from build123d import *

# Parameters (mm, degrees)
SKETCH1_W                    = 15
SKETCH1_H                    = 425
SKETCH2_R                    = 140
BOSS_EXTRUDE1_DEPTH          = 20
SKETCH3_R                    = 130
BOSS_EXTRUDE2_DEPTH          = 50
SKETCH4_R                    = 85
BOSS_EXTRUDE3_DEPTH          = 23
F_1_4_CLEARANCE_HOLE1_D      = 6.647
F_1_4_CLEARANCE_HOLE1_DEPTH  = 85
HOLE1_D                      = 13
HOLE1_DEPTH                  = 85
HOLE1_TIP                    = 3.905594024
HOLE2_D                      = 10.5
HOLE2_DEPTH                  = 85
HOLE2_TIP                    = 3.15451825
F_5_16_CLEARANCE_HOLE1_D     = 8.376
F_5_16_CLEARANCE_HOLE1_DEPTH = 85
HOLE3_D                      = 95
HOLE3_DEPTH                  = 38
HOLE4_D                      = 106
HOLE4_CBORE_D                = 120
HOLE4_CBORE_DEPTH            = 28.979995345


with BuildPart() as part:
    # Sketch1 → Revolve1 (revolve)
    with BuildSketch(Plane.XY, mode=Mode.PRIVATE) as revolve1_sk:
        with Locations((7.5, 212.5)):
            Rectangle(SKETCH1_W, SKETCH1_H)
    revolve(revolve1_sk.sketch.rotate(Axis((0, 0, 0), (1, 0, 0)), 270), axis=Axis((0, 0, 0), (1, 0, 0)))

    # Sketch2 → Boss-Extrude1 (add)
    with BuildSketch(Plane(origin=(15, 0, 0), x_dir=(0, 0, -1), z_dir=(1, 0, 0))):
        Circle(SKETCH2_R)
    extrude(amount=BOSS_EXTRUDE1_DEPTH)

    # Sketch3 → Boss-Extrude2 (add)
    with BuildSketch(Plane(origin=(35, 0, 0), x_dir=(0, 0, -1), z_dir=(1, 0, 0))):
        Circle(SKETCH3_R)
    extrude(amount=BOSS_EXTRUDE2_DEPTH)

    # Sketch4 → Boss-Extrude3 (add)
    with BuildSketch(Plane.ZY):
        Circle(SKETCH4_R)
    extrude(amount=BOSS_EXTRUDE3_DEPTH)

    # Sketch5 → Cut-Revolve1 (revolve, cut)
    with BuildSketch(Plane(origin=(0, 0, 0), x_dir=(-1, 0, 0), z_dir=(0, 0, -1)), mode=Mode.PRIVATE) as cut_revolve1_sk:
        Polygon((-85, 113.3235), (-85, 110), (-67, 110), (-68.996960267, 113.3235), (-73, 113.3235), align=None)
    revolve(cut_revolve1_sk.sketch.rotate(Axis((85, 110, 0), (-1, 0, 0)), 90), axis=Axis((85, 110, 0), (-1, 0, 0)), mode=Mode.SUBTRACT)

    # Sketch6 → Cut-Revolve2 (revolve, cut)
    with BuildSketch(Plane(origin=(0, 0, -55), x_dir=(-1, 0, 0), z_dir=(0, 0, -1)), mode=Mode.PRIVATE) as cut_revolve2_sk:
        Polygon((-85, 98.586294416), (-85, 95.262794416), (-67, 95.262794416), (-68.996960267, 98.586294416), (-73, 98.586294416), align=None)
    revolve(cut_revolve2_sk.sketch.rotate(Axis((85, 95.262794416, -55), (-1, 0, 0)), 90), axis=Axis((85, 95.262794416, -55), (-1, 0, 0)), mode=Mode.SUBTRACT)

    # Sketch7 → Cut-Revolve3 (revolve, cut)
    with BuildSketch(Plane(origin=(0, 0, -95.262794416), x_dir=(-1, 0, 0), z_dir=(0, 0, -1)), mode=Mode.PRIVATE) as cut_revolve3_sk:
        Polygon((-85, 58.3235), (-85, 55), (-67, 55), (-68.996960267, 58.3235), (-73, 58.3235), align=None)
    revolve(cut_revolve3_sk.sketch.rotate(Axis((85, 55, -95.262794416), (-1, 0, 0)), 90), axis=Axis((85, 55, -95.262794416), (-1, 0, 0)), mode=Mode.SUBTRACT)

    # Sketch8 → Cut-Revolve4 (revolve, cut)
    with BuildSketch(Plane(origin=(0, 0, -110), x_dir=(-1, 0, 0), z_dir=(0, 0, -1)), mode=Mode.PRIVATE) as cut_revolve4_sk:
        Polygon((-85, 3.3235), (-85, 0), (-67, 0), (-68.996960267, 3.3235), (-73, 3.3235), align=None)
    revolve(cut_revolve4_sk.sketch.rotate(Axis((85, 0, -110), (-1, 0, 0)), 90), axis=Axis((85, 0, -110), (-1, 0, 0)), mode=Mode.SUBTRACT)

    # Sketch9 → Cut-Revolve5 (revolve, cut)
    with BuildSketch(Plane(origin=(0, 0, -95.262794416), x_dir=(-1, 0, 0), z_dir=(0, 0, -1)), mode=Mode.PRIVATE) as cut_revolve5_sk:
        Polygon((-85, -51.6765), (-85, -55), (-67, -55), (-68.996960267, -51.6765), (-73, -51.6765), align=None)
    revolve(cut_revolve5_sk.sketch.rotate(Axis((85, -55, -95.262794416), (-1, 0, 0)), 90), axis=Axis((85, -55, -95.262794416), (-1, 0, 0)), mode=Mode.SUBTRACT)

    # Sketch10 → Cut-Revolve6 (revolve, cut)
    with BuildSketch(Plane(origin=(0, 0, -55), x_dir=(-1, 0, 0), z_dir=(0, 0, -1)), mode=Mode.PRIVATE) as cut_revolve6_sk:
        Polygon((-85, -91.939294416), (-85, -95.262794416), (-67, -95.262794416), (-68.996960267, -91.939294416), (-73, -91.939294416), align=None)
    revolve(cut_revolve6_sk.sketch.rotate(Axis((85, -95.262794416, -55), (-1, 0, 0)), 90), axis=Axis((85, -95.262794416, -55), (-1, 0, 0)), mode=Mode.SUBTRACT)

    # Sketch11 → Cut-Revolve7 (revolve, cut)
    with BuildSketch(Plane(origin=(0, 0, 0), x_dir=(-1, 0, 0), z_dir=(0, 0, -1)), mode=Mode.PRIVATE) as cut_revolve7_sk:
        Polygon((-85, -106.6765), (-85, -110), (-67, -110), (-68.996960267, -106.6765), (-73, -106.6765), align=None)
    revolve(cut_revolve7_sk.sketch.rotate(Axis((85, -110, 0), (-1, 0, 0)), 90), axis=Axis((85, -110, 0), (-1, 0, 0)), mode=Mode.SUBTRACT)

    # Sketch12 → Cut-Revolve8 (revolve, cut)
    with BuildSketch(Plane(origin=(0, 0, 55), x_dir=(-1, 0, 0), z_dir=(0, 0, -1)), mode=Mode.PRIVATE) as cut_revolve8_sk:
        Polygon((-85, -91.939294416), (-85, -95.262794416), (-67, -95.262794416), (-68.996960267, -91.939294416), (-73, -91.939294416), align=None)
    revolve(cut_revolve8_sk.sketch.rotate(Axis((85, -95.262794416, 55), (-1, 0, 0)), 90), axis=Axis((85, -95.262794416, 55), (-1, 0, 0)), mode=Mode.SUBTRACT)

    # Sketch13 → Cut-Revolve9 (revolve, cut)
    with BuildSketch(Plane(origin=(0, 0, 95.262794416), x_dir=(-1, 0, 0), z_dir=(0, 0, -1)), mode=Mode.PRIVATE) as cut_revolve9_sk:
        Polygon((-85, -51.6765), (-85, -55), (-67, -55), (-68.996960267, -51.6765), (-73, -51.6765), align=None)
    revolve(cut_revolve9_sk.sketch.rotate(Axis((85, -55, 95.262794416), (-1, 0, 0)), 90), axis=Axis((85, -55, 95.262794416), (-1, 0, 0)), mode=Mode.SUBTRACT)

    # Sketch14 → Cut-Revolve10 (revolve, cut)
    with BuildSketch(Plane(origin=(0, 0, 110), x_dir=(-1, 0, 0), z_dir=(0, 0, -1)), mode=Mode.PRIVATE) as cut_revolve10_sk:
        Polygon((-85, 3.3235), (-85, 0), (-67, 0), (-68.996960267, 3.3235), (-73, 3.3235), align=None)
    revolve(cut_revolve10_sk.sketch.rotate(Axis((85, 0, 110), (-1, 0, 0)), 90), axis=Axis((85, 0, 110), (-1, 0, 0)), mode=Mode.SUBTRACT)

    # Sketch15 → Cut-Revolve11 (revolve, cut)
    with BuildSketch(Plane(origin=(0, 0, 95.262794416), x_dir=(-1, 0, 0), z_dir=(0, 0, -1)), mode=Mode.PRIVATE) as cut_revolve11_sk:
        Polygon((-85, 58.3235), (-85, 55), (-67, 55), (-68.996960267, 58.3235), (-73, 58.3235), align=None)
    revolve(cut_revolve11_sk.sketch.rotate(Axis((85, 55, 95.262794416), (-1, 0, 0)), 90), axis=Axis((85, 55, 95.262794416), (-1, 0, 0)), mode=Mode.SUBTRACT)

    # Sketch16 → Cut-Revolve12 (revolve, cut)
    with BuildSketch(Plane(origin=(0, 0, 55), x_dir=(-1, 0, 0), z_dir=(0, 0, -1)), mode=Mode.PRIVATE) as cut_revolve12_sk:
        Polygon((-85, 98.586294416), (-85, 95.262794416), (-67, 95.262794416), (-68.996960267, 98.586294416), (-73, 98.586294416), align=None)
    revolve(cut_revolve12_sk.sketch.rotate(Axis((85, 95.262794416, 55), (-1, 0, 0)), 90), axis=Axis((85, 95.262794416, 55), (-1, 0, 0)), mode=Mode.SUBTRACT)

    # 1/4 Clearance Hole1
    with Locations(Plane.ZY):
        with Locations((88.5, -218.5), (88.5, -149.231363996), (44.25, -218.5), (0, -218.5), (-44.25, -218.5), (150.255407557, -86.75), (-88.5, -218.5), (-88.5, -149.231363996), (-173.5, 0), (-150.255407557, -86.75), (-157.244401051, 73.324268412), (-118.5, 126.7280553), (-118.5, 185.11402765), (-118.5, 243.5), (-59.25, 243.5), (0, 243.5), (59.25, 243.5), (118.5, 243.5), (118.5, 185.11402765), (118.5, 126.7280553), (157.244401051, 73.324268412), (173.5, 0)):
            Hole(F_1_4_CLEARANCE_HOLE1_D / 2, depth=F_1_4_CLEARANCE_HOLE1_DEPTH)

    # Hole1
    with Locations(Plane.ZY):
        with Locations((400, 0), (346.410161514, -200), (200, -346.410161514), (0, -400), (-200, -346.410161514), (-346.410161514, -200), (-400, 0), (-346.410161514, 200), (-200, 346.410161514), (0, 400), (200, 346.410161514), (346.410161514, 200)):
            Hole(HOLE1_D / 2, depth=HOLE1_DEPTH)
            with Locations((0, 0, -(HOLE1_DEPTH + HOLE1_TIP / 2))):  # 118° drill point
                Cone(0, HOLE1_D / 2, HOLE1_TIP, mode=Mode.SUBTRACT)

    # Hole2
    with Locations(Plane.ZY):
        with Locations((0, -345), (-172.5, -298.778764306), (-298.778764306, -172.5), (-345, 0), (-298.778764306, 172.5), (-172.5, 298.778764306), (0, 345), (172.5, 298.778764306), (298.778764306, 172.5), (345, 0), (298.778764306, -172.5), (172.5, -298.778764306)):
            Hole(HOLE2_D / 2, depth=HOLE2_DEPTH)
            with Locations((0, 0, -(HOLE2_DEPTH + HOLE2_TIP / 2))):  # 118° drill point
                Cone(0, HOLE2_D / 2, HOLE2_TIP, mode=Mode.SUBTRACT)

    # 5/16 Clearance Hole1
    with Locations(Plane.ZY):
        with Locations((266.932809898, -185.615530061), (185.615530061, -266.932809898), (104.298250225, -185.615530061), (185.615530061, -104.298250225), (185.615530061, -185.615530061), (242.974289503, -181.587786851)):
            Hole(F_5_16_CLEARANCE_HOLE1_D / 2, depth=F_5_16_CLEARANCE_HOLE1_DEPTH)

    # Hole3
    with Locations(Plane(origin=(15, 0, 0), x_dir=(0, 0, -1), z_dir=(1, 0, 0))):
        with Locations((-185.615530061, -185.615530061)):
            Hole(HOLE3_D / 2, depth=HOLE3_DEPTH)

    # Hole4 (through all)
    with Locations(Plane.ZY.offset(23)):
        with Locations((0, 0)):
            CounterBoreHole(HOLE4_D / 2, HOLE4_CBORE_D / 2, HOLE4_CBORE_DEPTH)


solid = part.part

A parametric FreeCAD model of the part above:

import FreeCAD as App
import Part
import Sketcher

V = App.Vector
Q = App.Units.Quantity

doc = App.newDocument("Part")
body = doc.addObject("PartDesign::Body", "Body")

# Sketch on XY plane
sketch1 = body.newObject("Sketcher::SketchObject", "Sketch")
sketch1.AttachmentSupport = (doc.getObject("XY_Plane"), [""])
sketch1.MapMode = "FlatFace"
sketch1.addGeometry([
    Part.LineSegment(V(0, 425, 0), V(0, 0, 0)),
    Part.LineSegment(V(0, 0, 0), V(15, 0, 0)),
    Part.LineSegment(V(15, 0, 0), V(15, 425, 0)),
    Part.LineSegment(V(15, 425, 0), V(0, 425, 0)),
], False)
sketch1.addConstraint([
    Sketcher.Constraint("Coincident", 0, 2, 1, 1),
    Sketcher.Constraint("Coincident", 1, 2, 2, 1),
    Sketcher.Constraint("Coincident", 2, 2, 3, 1),
    Sketcher.Constraint("Coincident", 3, 2, 0, 1),
    Sketcher.Constraint("Vertical", 0),
    Sketcher.Constraint("Horizontal", 1),
    Sketcher.Constraint("Vertical", 2),
    Sketcher.Constraint("Horizontal", 3),
    Sketcher.Constraint("Coincident", 0, 2, -1, 1),
    Sketcher.Constraint("DistanceX", 1, 1, 1, 2, 15.0),
    Sketcher.Constraint("DistanceY", 0, 2, 0, 1, 425.0),
])
revolution = body.newObject("PartDesign::Revolution", "Revolution")
revolution.Profile = sketch1
revolution.ReferenceAxis = (sketch1, ["H_Axis"])
revolution.Angle = 360

# Sketch on YZ plane
sketch2 = body.newObject("Sketcher::SketchObject", "Sketch001")
sketch2.AttachmentSupport = (doc.getObject("YZ_Plane"), [""])
sketch2.MapMode = "FlatFace"
sketch2.AttachmentOffset = App.Placement(V(0, 0, 15), App.Rotation())
sketch2.addGeometry(Part.Circle(V(0, 0, 0), V(0, 0, 1), 140), False)
sketch2.addConstraint([
    Sketcher.Constraint("Coincident", 0, 3, -1, 1),
    Sketcher.Constraint("Diameter", 0, 280.0),
])
pad1 = body.newObject("PartDesign::Pad", "Pad")
pad1.Profile = sketch2
pad1.Length = 20

# Sketch on YZ plane
sketch3 = body.newObject("Sketcher::SketchObject", "Sketch002")
sketch3.AttachmentSupport = (doc.getObject("YZ_Plane"), [""])
sketch3.MapMode = "FlatFace"
sketch3.AttachmentOffset = App.Placement(V(0, 0, 35), App.Rotation())
sketch3.addGeometry(Part.Circle(V(0, 0, 0), V(0, 0, 1), 130), False)
sketch3.addConstraint([
    Sketcher.Constraint("Coincident", 0, 3, -1, 1),
    Sketcher.Constraint("Diameter", 0, 260.0),
])
pad2 = body.newObject("PartDesign::Pad", "Pad001")
pad2.Profile = sketch3
pad2.Length = 50

# Sketch on YZ plane
sketch4 = body.newObject("Sketcher::SketchObject", "Sketch003")
sketch4.AttachmentSupport = (doc.getObject("YZ_Plane"), [""])
sketch4.MapMode = "FlatFace"
sketch4.addGeometry(Part.Circle(V(0, 0, 0), V(0, 0, 1), 85), False)
sketch4.addConstraint([
    Sketcher.Constraint("Coincident", 0, 3, -1, 1),
    Sketcher.Constraint("Diameter", 0, 170.0),
])
pad3 = body.newObject("PartDesign::Pad", "Pad002")
pad3.Profile = sketch4
pad3.Length = 23
pad3.Reversed = True

# Sketch on XY plane
sketch5 = body.newObject("Sketcher::SketchObject", "Sketch004")
sketch5.AttachmentSupport = (doc.getObject("XY_Plane"), [""])
sketch5.MapMode = "FlatFace"
sketch5.addGeometry([
    Part.LineSegment(V(85, 113.3235, 0), V(85, 110, 0)),
    Part.LineSegment(V(85, 110, 0), V(67, 110, 0)),
    Part.LineSegment(V(67, 110, 0), V(68.99696, 113.3235, 0)),
    Part.LineSegment(V(68.99696, 113.3235, 0), V(85, 113.3235, 0)),
], False)
sketch5.addGeometry(Part.LineSegment(V(85, 110, 0), V(67, 110, 0)), True)  # axis
sketch5.addConstraint([
    Sketcher.Constraint("Coincident", 0, 2, 1, 1),
    Sketcher.Constraint("Coincident", 1, 2, 2, 1),
    Sketcher.Constraint("Coincident", 2, 2, 3, 1),
    Sketcher.Constraint("Coincident", 3, 2, 0, 1),
    Sketcher.Constraint("Vertical", 0),
    Sketcher.Constraint("Horizontal", 1),
    Sketcher.Constraint("Horizontal", 3),
    Sketcher.Constraint("Horizontal", 4),
    Sketcher.Constraint("Coincident", 4, 1, 0, 2),
    Sketcher.Constraint("Equal", 1, 4),
    Sketcher.Constraint("DistanceX", 1, 2, 1, 1, 18.0),
    Sketcher.Constraint("Angle", 2, Q("59 deg")),
    Sketcher.Constraint("DistanceX", -1, 1, 0, 2, 85.0),
    Sketcher.Constraint("DistanceY", -1, 1, 0, 2, 110.0),
    Sketcher.Constraint("DistanceY", 0, 2, 0, 1, 3.3235),
])
groove = body.newObject("PartDesign::Groove", "Groove")
groove.Profile = sketch5
groove.ReferenceAxis = (sketch5, ["Axis0"])
groove.Angle = 360

# Sketch on XY plane
sketch6 = body.newObject("Sketcher::SketchObject", "Sketch005")
sketch6.AttachmentSupport = (doc.getObject("XY_Plane"), [""])
sketch6.MapMode = "FlatFace"
sketch6.AttachmentOffset = App.Placement(V(0, 0, -55), App.Rotation())
sketch6.addGeometry([
    Part.LineSegment(V(85, 98.586294, 0), V(85, 95.262794, 0)),
    Part.LineSegment(V(85, 95.262794, 0), V(67, 95.262794, 0)),
    Part.LineSegment(V(67, 95.262794, 0), V(68.99696, 98.586294, 0)),
    Part.LineSegment(V(68.99696, 98.586294, 0), V(85, 98.586294, 0)),
], False)
sketch6.addGeometry(Part.LineSegment(V(85, 95.262794, 0), V(67, 95.262794, 0)), True)  # axis
sketch6.addConstraint([
    Sketcher.Constraint("Coincident", 0, 2, 1, 1),
    Sketcher.Constraint("Coincident", 1, 2, 2, 1),
    Sketcher.Constraint("Coincident", 2, 2, 3, 1),
    Sketcher.Constraint("Coincident", 3, 2, 0, 1),
    Sketcher.Constraint("Vertical", 0),
    Sketcher.Constraint("Horizontal", 1),
    Sketcher.Constraint("Horizontal", 3),
    Sketcher.Constraint("Horizontal", 4),
    Sketcher.Constraint("Coincident", 4, 1, 0, 2),
    Sketcher.Constraint("Equal", 1, 4),
    Sketcher.Constraint("DistanceX", 1, 2, 1, 1, 18.0),
    Sketcher.Constraint("Angle", 2, Q("59 deg")),
    Sketcher.Constraint("DistanceX", -1, 1, 0, 2, 85.0),
    Sketcher.Constraint("DistanceY", 0, 2, 0, 1, 3.3235),
    Sketcher.Constraint("DistanceY", -1, 1, 0, 2, 95.262794),
])
groove2 = body.newObject("PartDesign::Groove", "Groove001")
groove2.Profile = sketch6
groove2.ReferenceAxis = (sketch6, ["Axis0"])
groove2.Angle = 360

# Sketch on XY plane
sketch7 = body.newObject("Sketcher::SketchObject", "Sketch006")
sketch7.AttachmentSupport = (doc.getObject("XY_Plane"), [""])
sketch7.MapMode = "FlatFace"
sketch7.AttachmentOffset = App.Placement(V(0, 0, -95.262794), App.Rotation())
sketch7.addGeometry([
    Part.LineSegment(V(85, 58.3235, 0), V(85, 55, 0)),
    Part.LineSegment(V(85, 55, 0), V(67, 55, 0)),
    Part.LineSegment(V(67, 55, 0), V(68.99696, 58.3235, 0)),
    Part.LineSegment(V(68.99696, 58.3235, 0), V(85, 58.3235, 0)),
], False)
sketch7.addGeometry(Part.LineSegment(V(85, 55, 0), V(67, 55, 0)), True)  # axis
sketch7.addConstraint([
    Sketcher.Constraint("Coincident", 0, 2, 1, 1),
    Sketcher.Constraint("Coincident", 1, 2, 2, 1),
    Sketcher.Constraint("Coincident", 2, 2, 3, 1),
    Sketcher.Constraint("Coincident", 3, 2, 0, 1),
    Sketcher.Constraint("Vertical", 0),
    Sketcher.Constraint("Horizontal", 1),
    Sketcher.Constraint("Horizontal", 3),
    Sketcher.Constraint("Horizontal", 4),
    Sketcher.Constraint("Coincident", 4, 1, 0, 2),
    Sketcher.Constraint("Equal", 1, 4),
    Sketcher.Constraint("DistanceX", 1, 2, 1, 1, 18.0),
    Sketcher.Constraint("Angle", 2, Q("59 deg")),
    Sketcher.Constraint("DistanceX", -1, 1, 0, 2, 85.0),
    Sketcher.Constraint("DistanceY", -1, 1, 0, 2, 55.0),
    Sketcher.Constraint("DistanceY", 0, 2, 0, 1, 3.3235),
])
groove3 = body.newObject("PartDesign::Groove", "Groove002")
groove3.Profile = sketch7
groove3.ReferenceAxis = (sketch7, ["Axis0"])
groove3.Angle = 360

# Sketch on XY plane
sketch8 = body.newObject("Sketcher::SketchObject", "Sketch007")
sketch8.AttachmentSupport = (doc.getObject("XY_Plane"), [""])
sketch8.MapMode = "FlatFace"
sketch8.AttachmentOffset = App.Placement(V(0, 0, -110), App.Rotation())
sketch8.addGeometry([
    Part.LineSegment(V(85, 3.3235, 0), V(85, 0, 0)),
    Part.LineSegment(V(85, 0, 0), V(67, 0, 0)),
    Part.LineSegment(V(67, 0, 0), V(68.99696, 3.3235, 0)),
    Part.LineSegment(V(68.99696, 3.3235, 0), V(85, 3.3235, 0)),
], False)
sketch8.addConstraint([
    Sketcher.Constraint("Coincident", 0, 2, 1, 1),
    Sketcher.Constraint("Coincident", 1, 2, 2, 1),
    Sketcher.Constraint("Coincident", 2, 2, 3, 1),
    Sketcher.Constraint("Coincident", 3, 2, 0, 1),
    Sketcher.Constraint("Vertical", 0),
    Sketcher.Constraint("Horizontal", 1),
    Sketcher.Constraint("Horizontal", 3),
    Sketcher.Constraint("PointOnObject", 0, 2, -1),
    Sketcher.Constraint("DistanceX", 1, 2, 1, 1, 18.0),
    Sketcher.Constraint("Angle", 2, Q("59 deg")),
    Sketcher.Constraint("DistanceX", -1, 1, 0, 2, 85.0),
    Sketcher.Constraint("DistanceY", 0, 2, 0, 1, 3.3235),
])
groove4 = body.newObject("PartDesign::Groove", "Groove003")
groove4.Profile = sketch8
groove4.ReferenceAxis = (sketch8, ["H_Axis"])
groove4.Angle = 360

# Sketch on XY plane
sketch9 = body.newObject("Sketcher::SketchObject", "Sketch008")
sketch9.AttachmentSupport = (doc.getObject("XY_Plane"), [""])
sketch9.MapMode = "FlatFace"
sketch9.AttachmentOffset = App.Placement(V(0, 0, -95.262794), App.Rotation())
sketch9.addGeometry([
    Part.LineSegment(V(85, -51.6765, 0), V(85, -55, 0)),
    Part.LineSegment(V(85, -55, 0), V(67, -55, 0)),
    Part.LineSegment(V(67, -55, 0), V(68.99696, -51.6765, 0)),
    Part.LineSegment(V(68.99696, -51.6765, 0), V(85, -51.6765, 0)),
], False)
sketch9.addGeometry(Part.LineSegment(V(85, -55, 0), V(67, -55, 0)), True)  # axis
sketch9.addConstraint([
    Sketcher.Constraint("Coincident", 0, 2, 1, 1),
    Sketcher.Constraint("Coincident", 1, 2, 2, 1),
    Sketcher.Constraint("Coincident", 2, 2, 3, 1),
    Sketcher.Constraint("Coincident", 3, 2, 0, 1),
    Sketcher.Constraint("Vertical", 0),
    Sketcher.Constraint("Horizontal", 1),
    Sketcher.Constraint("Horizontal", 3),
    Sketcher.Constraint("Horizontal", 4),
    Sketcher.Constraint("Coincident", 4, 1, 0, 2),
    Sketcher.Constraint("Equal", 1, 4),
    Sketcher.Constraint("DistanceX", 1, 2, 1, 1, 18.0),
    Sketcher.Constraint("Angle", 2, Q("59 deg")),
    Sketcher.Constraint("DistanceX", -1, 1, 0, 2, 85.0),
    Sketcher.Constraint("DistanceY", 0, 2, -1, 1, 55.0),
    Sketcher.Constraint("DistanceY", 0, 2, 0, 1, 3.3235),
])
groove5 = body.newObject("PartDesign::Groove", "Groove004")
groove5.Profile = sketch9
groove5.ReferenceAxis = (sketch9, ["Axis0"])
groove5.Angle = 360

# Sketch on XY plane
sketch10 = body.newObject("Sketcher::SketchObject", "Sketch009")
sketch10.AttachmentSupport = (doc.getObject("XY_Plane"), [""])
sketch10.MapMode = "FlatFace"
sketch10.AttachmentOffset = App.Placement(V(0, 0, -55), App.Rotation())
sketch10.addGeometry([
    Part.LineSegment(V(85, -91.939294, 0), V(85, -95.262794, 0)),
    Part.LineSegment(V(85, -95.262794, 0), V(67, -95.262794, 0)),
    Part.LineSegment(V(67, -95.262794, 0), V(68.99696, -91.939294, 0)),
    Part.LineSegment(V(68.99696, -91.939294, 0), V(85, -91.939294, 0)),
], False)
sketch10.addGeometry(Part.LineSegment(V(85, -95.262794, 0), V(67, -95.262794, 0)), True)  # axis
sketch10.addConstraint([
    Sketcher.Constraint("Coincident", 0, 2, 1, 1),
    Sketcher.Constraint("Coincident", 1, 2, 2, 1),
    Sketcher.Constraint("Coincident", 2, 2, 3, 1),
    Sketcher.Constraint("Coincident", 3, 2, 0, 1),
    Sketcher.Constraint("Vertical", 0),
    Sketcher.Constraint("Horizontal", 1),
    Sketcher.Constraint("Horizontal", 3),
    Sketcher.Constraint("Horizontal", 4),
    Sketcher.Constraint("Coincident", 4, 1, 0, 2),
    Sketcher.Constraint("Equal", 1, 4),
    Sketcher.Constraint("DistanceX", 1, 2, 1, 1, 18.0),
    Sketcher.Constraint("Angle", 2, Q("59 deg")),
    Sketcher.Constraint("DistanceX", -1, 1, 0, 2, 85.0),
    Sketcher.Constraint("DistanceY", 0, 2, 0, 1, 3.3235),
    Sketcher.Constraint("DistanceY", 0, 2, -1, 1, 95.262794),
])
groove6 = body.newObject("PartDesign::Groove", "Groove005")
groove6.Profile = sketch10
groove6.ReferenceAxis = (sketch10, ["Axis0"])
groove6.Angle = 360

# Sketch on XY plane
sketch11 = body.newObject("Sketcher::SketchObject", "Sketch010")
sketch11.AttachmentSupport = (doc.getObject("XY_Plane"), [""])
sketch11.MapMode = "FlatFace"
sketch11.addGeometry([
    Part.LineSegment(V(85, -106.6765, 0), V(85, -110, 0)),
    Part.LineSegment(V(85, -110, 0), V(67, -110, 0)),
    Part.LineSegment(V(67, -110, 0), V(68.99696, -106.6765, 0)),
    Part.LineSegment(V(68.99696, -106.6765, 0), V(85, -106.6765, 0)),
], False)
sketch11.addGeometry(Part.LineSegment(V(85, -110, 0), V(67, -110, 0)), True)  # axis
sketch11.addConstraint([
    Sketcher.Constraint("Coincident", 0, 2, 1, 1),
    Sketcher.Constraint("Coincident", 1, 2, 2, 1),
    Sketcher.Constraint("Coincident", 2, 2, 3, 1),
    Sketcher.Constraint("Coincident", 3, 2, 0, 1),
    Sketcher.Constraint("Vertical", 0),
    Sketcher.Constraint("Horizontal", 1),
    Sketcher.Constraint("Horizontal", 3),
    Sketcher.Constraint("Horizontal", 4),
    Sketcher.Constraint("Coincident", 4, 1, 0, 2),
    Sketcher.Constraint("Equal", 1, 4),
    Sketcher.Constraint("DistanceX", 1, 2, 1, 1, 18.0),
    Sketcher.Constraint("Angle", 2, Q("59 deg")),
    Sketcher.Constraint("DistanceX", -1, 1, 0, 2, 85.0),
    Sketcher.Constraint("DistanceY", 0, 2, -1, 1, 110.0),
    Sketcher.Constraint("DistanceY", 0, 2, 0, 1, 3.3235),
])
groove7 = body.newObject("PartDesign::Groove", "Groove006")
groove7.Profile = sketch11
groove7.ReferenceAxis = (sketch11, ["Axis0"])
groove7.Angle = 360

# Sketch on XY plane
sketch12 = body.newObject("Sketcher::SketchObject", "Sketch011")
sketch12.AttachmentSupport = (doc.getObject("XY_Plane"), [""])
sketch12.MapMode = "FlatFace"
sketch12.AttachmentOffset = App.Placement(V(0, 0, 55), App.Rotation())
sketch12.addGeometry([
    Part.LineSegment(V(85, -91.939294, 0), V(85, -95.262794, 0)),
    Part.LineSegment(V(85, -95.262794, 0), V(67, -95.262794, 0)),
    Part.LineSegment(V(67, -95.262794, 0), V(68.99696, -91.939294, 0)),
    Part.LineSegment(V(68.99696, -91.939294, 0), V(85, -91.939294, 0)),
], False)
sketch12.addGeometry(Part.LineSegment(V(85, -95.262794, 0), V(67, -95.262794, 0)), True)  # axis
sketch12.addConstraint([
    Sketcher.Constraint("Coincident", 0, 2, 1, 1),
    Sketcher.Constraint("Coincident", 1, 2, 2, 1),
    Sketcher.Constraint("Coincident", 2, 2, 3, 1),
    Sketcher.Constraint("Coincident", 3, 2, 0, 1),
    Sketcher.Constraint("Vertical", 0),
    Sketcher.Constraint("Horizontal", 1),
    Sketcher.Constraint("Horizontal", 3),
    Sketcher.Constraint("Horizontal", 4),
    Sketcher.Constraint("Coincident", 4, 1, 0, 2),
    Sketcher.Constraint("Equal", 1, 4),
    Sketcher.Constraint("DistanceX", 1, 2, 1, 1, 18.0),
    Sketcher.Constraint("Angle", 2, Q("59 deg")),
    Sketcher.Constraint("DistanceX", -1, 1, 0, 2, 85.0),
    Sketcher.Constraint("DistanceY", 0, 2, 0, 1, 3.3235),
    Sketcher.Constraint("DistanceY", 0, 2, -1, 1, 95.262794),
])
groove8 = body.newObject("PartDesign::Groove", "Groove007")
groove8.Profile = sketch12
groove8.ReferenceAxis = (sketch12, ["Axis0"])
groove8.Angle = 360

# Sketch on XY plane
sketch13 = body.newObject("Sketcher::SketchObject", "Sketch012")
sketch13.AttachmentSupport = (doc.getObject("XY_Plane"), [""])
sketch13.MapMode = "FlatFace"
sketch13.AttachmentOffset = App.Placement(V(0, 0, 95.262794), App.Rotation())
sketch13.addGeometry([
    Part.LineSegment(V(85, -51.6765, 0), V(85, -55, 0)),
    Part.LineSegment(V(85, -55, 0), V(67, -55, 0)),
    Part.LineSegment(V(67, -55, 0), V(68.99696, -51.6765, 0)),
    Part.LineSegment(V(68.99696, -51.6765, 0), V(85, -51.6765, 0)),
], False)
sketch13.addGeometry(Part.LineSegment(V(85, -55, 0), V(67, -55, 0)), True)  # axis
sketch13.addConstraint([
    Sketcher.Constraint("Coincident", 0, 2, 1, 1),
    Sketcher.Constraint("Coincident", 1, 2, 2, 1),
    Sketcher.Constraint("Coincident", 2, 2, 3, 1),
    Sketcher.Constraint("Coincident", 3, 2, 0, 1),
    Sketcher.Constraint("Vertical", 0),
    Sketcher.Constraint("Horizontal", 1),
    Sketcher.Constraint("Horizontal", 3),
    Sketcher.Constraint("Horizontal", 4),
    Sketcher.Constraint("Coincident", 4, 1, 0, 2),
    Sketcher.Constraint("Equal", 1, 4),
    Sketcher.Constraint("DistanceX", 1, 2, 1, 1, 18.0),
    Sketcher.Constraint("Angle", 2, Q("59 deg")),
    Sketcher.Constraint("DistanceX", -1, 1, 0, 2, 85.0),
    Sketcher.Constraint("DistanceY", 0, 2, -1, 1, 55.0),
    Sketcher.Constraint("DistanceY", 0, 2, 0, 1, 3.3235),
])
groove9 = body.newObject("PartDesign::Groove", "Groove008")
groove9.Profile = sketch13
groove9.ReferenceAxis = (sketch13, ["Axis0"])
groove9.Angle = 360

# Sketch on XY plane
sketch14 = body.newObject("Sketcher::SketchObject", "Sketch013")
sketch14.AttachmentSupport = (doc.getObject("XY_Plane"), [""])
sketch14.MapMode = "FlatFace"
sketch14.AttachmentOffset = App.Placement(V(0, 0, 110), App.Rotation())
sketch14.addGeometry([
    Part.LineSegment(V(85, 3.3235, 0), V(85, 0, 0)),
    Part.LineSegment(V(85, 0, 0), V(67, 0, 0)),
    Part.LineSegment(V(67, 0, 0), V(68.99696, 3.3235, 0)),
    Part.LineSegment(V(68.99696, 3.3235, 0), V(85, 3.3235, 0)),
], False)
sketch14.addConstraint([
    Sketcher.Constraint("Coincident", 0, 2, 1, 1),
    Sketcher.Constraint("Coincident", 1, 2, 2, 1),
    Sketcher.Constraint("Coincident", 2, 2, 3, 1),
    Sketcher.Constraint("Coincident", 3, 2, 0, 1),
    Sketcher.Constraint("Vertical", 0),
    Sketcher.Constraint("Horizontal", 1),
    Sketcher.Constraint("Horizontal", 3),
    Sketcher.Constraint("PointOnObject", 0, 2, -1),
    Sketcher.Constraint("DistanceX", 1, 2, 1, 1, 18.0),
    Sketcher.Constraint("Angle", 2, Q("59 deg")),
    Sketcher.Constraint("DistanceX", -1, 1, 0, 2, 85.0),
    Sketcher.Constraint("DistanceY", 0, 2, 0, 1, 3.3235),
])
groove10 = body.newObject("PartDesign::Groove", "Groove009")
groove10.Profile = sketch14
groove10.ReferenceAxis = (sketch14, ["H_Axis"])
groove10.Angle = 360

# Sketch on XY plane
sketch15 = body.newObject("Sketcher::SketchObject", "Sketch014")
sketch15.AttachmentSupport = (doc.getObject("XY_Plane"), [""])
sketch15.MapMode = "FlatFace"
sketch15.AttachmentOffset = App.Placement(V(0, 0, 95.262794), App.Rotation())
sketch15.addGeometry([
    Part.LineSegment(V(85, 58.3235, 0), V(85, 55, 0)),
    Part.LineSegment(V(85, 55, 0), V(67, 55, 0)),
    Part.LineSegment(V(67, 55, 0), V(68.99696, 58.3235, 0)),
    Part.LineSegment(V(68.99696, 58.3235, 0), V(85, 58.3235, 0)),
], False)
sketch15.addGeometry(Part.LineSegment(V(85, 55, 0), V(67, 55, 0)), True)  # axis
sketch15.addConstraint([
    Sketcher.Constraint("Coincident", 0, 2, 1, 1),
    Sketcher.Constraint("Coincident", 1, 2, 2, 1),
    Sketcher.Constraint("Coincident", 2, 2, 3, 1),
    Sketcher.Constraint("Coincident", 3, 2, 0, 1),
    Sketcher.Constraint("Vertical", 0),
    Sketcher.Constraint("Horizontal", 1),
    Sketcher.Constraint("Horizontal", 3),
    Sketcher.Constraint("Horizontal", 4),
    Sketcher.Constraint("Coincident", 4, 1, 0, 2),
    Sketcher.Constraint("Equal", 1, 4),
    Sketcher.Constraint("DistanceX", 1, 2, 1, 1, 18.0),
    Sketcher.Constraint("Angle", 2, Q("59 deg")),
    Sketcher.Constraint("DistanceX", -1, 1, 0, 2, 85.0),
    Sketcher.Constraint("DistanceY", -1, 1, 0, 2, 55.0),
    Sketcher.Constraint("DistanceY", 0, 2, 0, 1, 3.3235),
])
groove11 = body.newObject("PartDesign::Groove", "Groove010")
groove11.Profile = sketch15
groove11.ReferenceAxis = (sketch15, ["Axis0"])
groove11.Angle = 360

# Sketch on XY plane
sketch16 = body.newObject("Sketcher::SketchObject", "Sketch015")
sketch16.AttachmentSupport = (doc.getObject("XY_Plane"), [""])
sketch16.MapMode = "FlatFace"
sketch16.AttachmentOffset = App.Placement(V(0, 0, 55), App.Rotation())
sketch16.addGeometry([
    Part.LineSegment(V(85, 98.586294, 0), V(85, 95.262794, 0)),
    Part.LineSegment(V(85, 95.262794, 0), V(67, 95.262794, 0)),
    Part.LineSegment(V(67, 95.262794, 0), V(68.99696, 98.586294, 0)),
    Part.LineSegment(V(68.99696, 98.586294, 0), V(85, 98.586294, 0)),
], False)
sketch16.addGeometry(Part.LineSegment(V(85, 95.262794, 0), V(67, 95.262794, 0)), True)  # axis
sketch16.addConstraint([
    Sketcher.Constraint("Coincident", 0, 2, 1, 1),
    Sketcher.Constraint("Coincident", 1, 2, 2, 1),
    Sketcher.Constraint("Coincident", 2, 2, 3, 1),
    Sketcher.Constraint("Coincident", 3, 2, 0, 1),
    Sketcher.Constraint("Vertical", 0),
    Sketcher.Constraint("Horizontal", 1),
    Sketcher.Constraint("Horizontal", 3),
    Sketcher.Constraint("Horizontal", 4),
    Sketcher.Constraint("Coincident", 4, 1, 0, 2),
    Sketcher.Constraint("Equal", 1, 4),
    Sketcher.Constraint("DistanceX", 1, 2, 1, 1, 18.0),
    Sketcher.Constraint("Angle", 2, Q("59 deg")),
    Sketcher.Constraint("DistanceX", -1, 1, 0, 2, 85.0),
    Sketcher.Constraint("DistanceY", 0, 2, 0, 1, 3.3235),
    Sketcher.Constraint("DistanceY", -1, 1, 0, 2, 95.262794),
])
groove12 = body.newObject("PartDesign::Groove", "Groove011")
groove12.Profile = sketch16
groove12.ReferenceAxis = (sketch16, ["Axis0"])
groove12.Angle = 360

# Sketch on YZ plane
sketch17 = body.newObject("Sketcher::SketchObject", "Sketch016")
sketch17.AttachmentSupport = (doc.getObject("YZ_Plane"), [""])
sketch17.MapMode = "FlatFace"
sketch17.addGeometry([
    Part.Circle(V(-218.5, 88.5, 0), V(0, 0, 1), 3.3235),  # 0
    Part.Circle(V(-149.231364, 88.5, 0), V(0, 0, 1), 3.3235),  # 1
    Part.Circle(V(-218.5, 44.25, 0), V(0, 0, 1), 3.3235),  # 2
    Part.Circle(V(-218.5, 0, 0), V(0, 0, 1), 3.3235),  # 3
    Part.Circle(V(-218.5, -44.25, 0), V(0, 0, 1), 3.3235),  # 4
    Part.Circle(V(-86.75, 150.255408, 0), V(0, 0, 1), 3.3235),  # 5
    Part.Circle(V(-218.5, -88.5, 0), V(0, 0, 1), 3.3235),  # 6
    Part.Circle(V(-149.231364, -88.5, 0), V(0, 0, 1), 3.3235),  # 7
    Part.Circle(V(0, -173.5, 0), V(0, 0, 1), 3.3235),  # 8
    Part.Circle(V(-86.75, -150.255408, 0), V(0, 0, 1), 3.3235),  # 9
    Part.Circle(V(73.324268, -157.244401, 0), V(0, 0, 1), 3.3235),  # 10
    Part.Circle(V(126.728055, -118.5, 0), V(0, 0, 1), 3.3235),  # 11
    Part.Circle(V(185.114028, -118.5, 0), V(0, 0, 1), 3.3235),  # 12
    Part.Circle(V(243.5, -118.5, 0), V(0, 0, 1), 3.3235),  # 13
    Part.Circle(V(243.5, -59.25, 0), V(0, 0, 1), 3.3235),  # 14
    Part.Circle(V(243.5, 0, 0), V(0, 0, 1), 3.3235),  # 15
    Part.Circle(V(243.5, 59.25, 0), V(0, 0, 1), 3.3235),  # 16
    Part.Circle(V(243.5, 118.5, 0), V(0, 0, 1), 3.3235),  # 17
    Part.Circle(V(185.114028, 118.5, 0), V(0, 0, 1), 3.3235),  # 18
    Part.Circle(V(126.728055, 118.5, 0), V(0, 0, 1), 3.3235),  # 19
    Part.Circle(V(73.324268, 157.244401, 0), V(0, 0, 1), 3.3235),  # 20
    Part.Circle(V(0, 173.5, 0), V(0, 0, 1), 3.3235),  # 21
], False)
sketch17.addConstraint([
    Sketcher.Constraint("Equal", 0, 1),
    Sketcher.Constraint("Equal", 1, 2),
    Sketcher.Constraint("Equal", 2, 3),
    Sketcher.Constraint("Equal", 3, 4),
    Sketcher.Constraint("Equal", 4, 5),
    Sketcher.Constraint("Equal", 5, 6),
    Sketcher.Constraint("Equal", 6, 7),
    Sketcher.Constraint("Equal", 7, 8),
    Sketcher.Constraint("Equal", 8, 9),
    Sketcher.Constraint("Equal", 9, 10),
    Sketcher.Constraint("Equal", 10, 11),
    Sketcher.Constraint("Equal", 11, 12),
    Sketcher.Constraint("Equal", 12, 13),
    Sketcher.Constraint("Equal", 13, 14),
    Sketcher.Constraint("Equal", 14, 15),
    Sketcher.Constraint("Equal", 15, 16),
    Sketcher.Constraint("Equal", 16, 17),
    Sketcher.Constraint("Equal", 17, 18),
    Sketcher.Constraint("Equal", 18, 19),
    Sketcher.Constraint("Equal", 19, 20),
    Sketcher.Constraint("Equal", 20, 21),
    Sketcher.Constraint("Symmetric", 8, 3, 21, 3, -1, 1),
    Sketcher.Constraint("Symmetric", 2, 3, 4, 3, -1),
    Sketcher.Constraint("Symmetric", 0, 3, 6, 3, -1),
    Sketcher.Constraint("Symmetric", 1, 3, 7, 3, -1),
    Sketcher.Constraint("Symmetric", 5, 3, 9, 3, -1),
    Sketcher.Constraint("Symmetric", 14, 3, 16, 3, -1),
    Sketcher.Constraint("Symmetric", 13, 3, 17, 3, -1),
    Sketcher.Constraint("Symmetric", 12, 3, 18, 3, -1),
    Sketcher.Constraint("Symmetric", 11, 3, 19, 3, -1),
    Sketcher.Constraint("Symmetric", 10, 3, 20, 3, -1),
    Sketcher.Constraint("PointOnObject", 3, 3, -1),
    Sketcher.Constraint("PointOnObject", 8, 3, -2),
    Sketcher.Constraint("PointOnObject", 15, 3, -1),
    Sketcher.Constraint("Horizontal", 0, 3, 1, 3),
    Sketcher.Constraint("Horizontal", 11, 3, 12, 3),
    Sketcher.Constraint("Horizontal", 12, 3, 13, 3),
    Sketcher.Constraint("Vertical", 0, 3, 2, 3),
    Sketcher.Constraint("Vertical", 2, 3, 3, 3),
    Sketcher.Constraint("Vertical", 13, 3, 14, 3),
    Sketcher.Constraint("Vertical", 14, 3, 15, 3),
    Sketcher.Constraint("Diameter", 0, 6.647),
    Sketcher.Constraint("DistanceY", 6, 3, 0, 3, 177.0),
    Sketcher.Constraint("DistanceY", 8, 3, 7, 3, 85.0),
    Sketcher.Constraint("DistanceY", 8, 3, 11, 3, 55.0),
    Sketcher.Constraint("DistanceX", 0, 3, -1, 1, 218.5),
    Sketcher.Constraint("DistanceX", -1, 1, 13, 3, 243.5),
    Sketcher.Constraint("DistanceY", 4, 3, 2, 3, 88.5),
    Sketcher.Constraint("DistanceY", 14, 3, 16, 3, 118.5),
    Sketcher.Constraint("DistanceX", 5, 3, -1, 1, 86.75),
    Sketcher.Constraint("DistanceY", 10, 3, -1, 1, 157.244401),
    Sketcher.Constraint("DistanceX", -1, 1, 10, 3, 73.324268),
    Sketcher.Constraint("DistanceX", 7, 3, 11, 3, 275.959419),
    Sketcher.Constraint("DistanceX", 10, 3, 12, 3, 111.789759),
    Sketcher.Constraint("DistanceX", 7, 3, 12, 3, 334.345392),
    Sketcher.Constraint("DistanceY", -1, 1, 5, 3, 150.255408),
])
doc.recompute()
hole = body.newObject("PartDesign::Hole", "Hole")
hole.Profile = sketch17
hole.ThreadType = "None"
hole.Diameter = 6.647
hole.DepthType = "Dimension"
hole.Depth = 85
hole.DrillPoint = "Flat"
hole.Reversed = True

# Sketch on YZ plane
sketch18 = body.newObject("Sketcher::SketchObject", "Sketch017")
sketch18.AttachmentSupport = (doc.getObject("YZ_Plane"), [""])
sketch18.MapMode = "FlatFace"
sketch18.addGeometry([
    Part.Circle(V(0, 400, 0), V(0, 0, 1), 6.5),  # 0
    Part.Circle(V(-200, 346.410162, 0), V(0, 0, 1), 6.5),  # 1
    Part.Circle(V(-346.410162, 200, 0), V(0, 0, 1), 6.5),  # 2
    Part.Circle(V(-400, 0, 0), V(0, 0, 1), 6.5),  # 3
    Part.Circle(V(-346.410162, -200, 0), V(0, 0, 1), 6.5),  # 4
    Part.Circle(V(-200, -346.410162, 0), V(0, 0, 1), 6.5),  # 5
    Part.Circle(V(0, -400, 0), V(0, 0, 1), 6.5),  # 6
    Part.Circle(V(200, -346.410162, 0), V(0, 0, 1), 6.5),  # 7
    Part.Circle(V(346.410162, -200, 0), V(0, 0, 1), 6.5),  # 8
    Part.Circle(V(400, 0, 0), V(0, 0, 1), 6.5),  # 9
    Part.Circle(V(346.410162, 200, 0), V(0, 0, 1), 6.5),  # 10
    Part.Circle(V(200, 346.410162, 0), V(0, 0, 1), 6.5),  # 11
], False)
sketch18.addConstraint([
    Sketcher.Constraint("Equal", 0, 1),
    Sketcher.Constraint("Equal", 1, 2),
    Sketcher.Constraint("Equal", 2, 3),
    Sketcher.Constraint("Equal", 3, 4),
    Sketcher.Constraint("Equal", 4, 5),
    Sketcher.Constraint("Equal", 5, 6),
    Sketcher.Constraint("Equal", 6, 7),
    Sketcher.Constraint("Equal", 7, 8),
    Sketcher.Constraint("Equal", 8, 9),
    Sketcher.Constraint("Equal", 9, 10),
    Sketcher.Constraint("Equal", 10, 11),
    Sketcher.Constraint("Symmetric", 0, 3, 6, 3, -1, 1),
    Sketcher.Constraint("Symmetric", 1, 3, 7, 3, -1, 1),
    Sketcher.Constraint("Symmetric", 2, 3, 8, 3, -1, 1),
    Sketcher.Constraint("Symmetric", 3, 3, 9, 3, -1, 1),
    Sketcher.Constraint("Symmetric", 4, 3, 10, 3, -1, 1),
    Sketcher.Constraint("Symmetric", 5, 3, 11, 3, -1, 1),
    Sketcher.Constraint("Symmetric", 5, 3, 7, 3, -2),
    Sketcher.Constraint("Symmetric", 4, 3, 8, 3, -2),
    Sketcher.Constraint("PointOnObject", 0, 3, -2),
    Sketcher.Constraint("PointOnObject", 3, 3, -1),
    Sketcher.Constraint("Diameter", 0, 13.0),
    Sketcher.Constraint("DistanceY", -1, 1, 0, 3, 400.0),
    Sketcher.Constraint("DistanceX", 1, 3, -1, 1, 200.0),
    Sketcher.Constraint("DistanceY", -1, 1, 2, 3, 200.0),
    Sketcher.Constraint("DistanceX", 3, 3, -1, 1, 400.0),
    Sketcher.Constraint("DistanceY", -1, 1, 1, 3, 346.410162),
    Sketcher.Constraint("DistanceX", 2, 3, -1, 1, 346.410162),
])
doc.recompute()
hole2 = body.newObject("PartDesign::Hole", "Hole001")
hole2.Profile = sketch18
hole2.ThreadType = "None"
hole2.Diameter = 13
hole2.DepthType = "Dimension"
hole2.Depth = 85
hole2.DrillPoint = "Angled"
hole2.DrillPointAngle = 118
hole2.Reversed = True

# Sketch on YZ plane
sketch19 = body.newObject("Sketcher::SketchObject", "Sketch018")
sketch19.AttachmentSupport = (doc.getObject("YZ_Plane"), [""])
sketch19.MapMode = "FlatFace"
sketch19.addGeometry([
    Part.Circle(V(-345, 0, 0), V(0, 0, 1), 5.25),  # 0
    Part.Circle(V(-298.778764, -172.5, 0), V(0, 0, 1), 5.25),  # 1
    Part.Circle(V(-172.5, -298.778764, 0), V(0, 0, 1), 5.25),  # 2
    Part.Circle(V(0, -345, 0), V(0, 0, 1), 5.25),  # 3
    Part.Circle(V(172.5, -298.778764, 0), V(0, 0, 1), 5.25),  # 4
    Part.Circle(V(298.778764, -172.5, 0), V(0, 0, 1), 5.25),  # 5
    Part.Circle(V(345, 0, 0), V(0, 0, 1), 5.25),  # 6
    Part.Circle(V(298.778764, 172.5, 0), V(0, 0, 1), 5.25),  # 7
    Part.Circle(V(172.5, 298.778764, 0), V(0, 0, 1), 5.25),  # 8
    Part.Circle(V(0, 345, 0), V(0, 0, 1), 5.25),  # 9
    Part.Circle(V(-172.5, 298.778764, 0), V(0, 0, 1), 5.25),  # 10
    Part.Circle(V(-298.778764, 172.5, 0), V(0, 0, 1), 5.25),  # 11
], False)
sketch19.addConstraint([
    Sketcher.Constraint("Equal", 0, 1),
    Sketcher.Constraint("Equal", 1, 2),
    Sketcher.Constraint("Equal", 2, 3),
    Sketcher.Constraint("Equal", 3, 4),
    Sketcher.Constraint("Equal", 4, 5),
    Sketcher.Constraint("Equal", 5, 6),
    Sketcher.Constraint("Equal", 6, 7),
    Sketcher.Constraint("Equal", 7, 8),
    Sketcher.Constraint("Equal", 8, 9),
    Sketcher.Constraint("Equal", 9, 10),
    Sketcher.Constraint("Equal", 10, 11),
    Sketcher.Constraint("Symmetric", 0, 3, 6, 3, -1, 1),
    Sketcher.Constraint("Symmetric", 1, 3, 7, 3, -1, 1),
    Sketcher.Constraint("Symmetric", 2, 3, 8, 3, -1, 1),
    Sketcher.Constraint("Symmetric", 3, 3, 9, 3, -1, 1),
    Sketcher.Constraint("Symmetric", 4, 3, 10, 3, -1, 1),
    Sketcher.Constraint("Symmetric", 5, 3, 11, 3, -1, 1),
    Sketcher.Constraint("Symmetric", 2, 3, 4, 3, -2),
    Sketcher.Constraint("Symmetric", 1, 3, 5, 3, -2),
    Sketcher.Constraint("PointOnObject", 0, 3, -1),
    Sketcher.Constraint("PointOnObject", 3, 3, -2),
    Sketcher.Constraint("Diameter", 0, 10.5),
    Sketcher.Constraint("DistanceX", 0, 3, -1, 1, 345.0),
    Sketcher.Constraint("DistanceY", 3, 3, -1, 1, 345.0),
    Sketcher.Constraint("DistanceX", 2, 3, 4, 3, 345.0),
    Sketcher.Constraint("DistanceY", 5, 3, 7, 3, 345.0),
    Sketcher.Constraint("DistanceX", 1, 3, 5, 3, 597.557529),
    Sketcher.Constraint("DistanceY", 4, 3, 8, 3, 597.557529),
])
doc.recompute()
hole3 = body.newObject("PartDesign::Hole", "Hole002")
hole3.Profile = sketch19
hole3.ThreadType = "None"
hole3.Diameter = 10.5
hole3.DepthType = "Dimension"
hole3.Depth = 85
hole3.DrillPoint = "Angled"
hole3.DrillPointAngle = 118
hole3.Reversed = True

# Sketch on YZ plane
sketch20 = body.newObject("Sketcher::SketchObject", "Sketch019")
sketch20.AttachmentSupport = (doc.getObject("YZ_Plane"), [""])
sketch20.MapMode = "FlatFace"
sketch20.addGeometry([
    Part.Circle(V(-185.61553, 266.93281, 0), V(0, 0, 1), 4.188),  # 0
    Part.Circle(V(-266.93281, 185.61553, 0), V(0, 0, 1), 4.188),  # 1
    Part.Circle(V(-185.61553, 104.29825, 0), V(0, 0, 1), 4.188),  # 2
    Part.Circle(V(-104.29825, 185.61553, 0), V(0, 0, 1), 4.188),  # 3
    Part.Circle(V(-185.61553, 185.61553, 0), V(0, 0, 1), 4.188),  # 4
    Part.Circle(V(-181.587787, 242.97429, 0), V(0, 0, 1), 4.188),  # 5
], False)
sketch20.addConstraint([
    Sketcher.Constraint("Equal", 0, 1),
    Sketcher.Constraint("Equal", 1, 2),
    Sketcher.Constraint("Equal", 2, 3),
    Sketcher.Constraint("Equal", 3, 4),
    Sketcher.Constraint("Equal", 4, 5),
    Sketcher.Constraint("Horizontal", 1, 3, 3, 3),
    Sketcher.Constraint("Horizontal", 3, 3, 4, 3),
    Sketcher.Constraint("Vertical", 0, 3, 2, 3),
    Sketcher.Constraint("Vertical", 2, 3, 4, 3),
    Sketcher.Constraint("Diameter", 0, 8.376),
    Sketcher.Constraint("DistanceX", 0, 3, -1, 1, 185.61553),
    Sketcher.Constraint("DistanceY", -1, 1, 0, 3, 266.93281),
    Sketcher.Constraint("DistanceX", 1, 3, -1, 1, 266.93281),
    Sketcher.Constraint("DistanceY", -1, 1, 1, 3, 185.61553),
    Sketcher.Constraint("DistanceY", -1, 1, 2, 3, 104.29825),
    Sketcher.Constraint("DistanceX", 3, 3, -1, 1, 104.29825),
    Sketcher.Constraint("DistanceY", -1, 1, 5, 3, 242.97429),
    Sketcher.Constraint("DistanceX", 5, 3, -1, 1, 181.587787),
])
doc.recompute()
hole4 = body.newObject("PartDesign::Hole", "Hole003")
hole4.Profile = sketch20
hole4.ThreadType = "None"
hole4.Diameter = 8.376
hole4.DepthType = "Dimension"
hole4.Depth = 85
hole4.DrillPoint = "Flat"
hole4.Reversed = True

# Sketch on YZ plane
sketch21 = body.newObject("Sketcher::SketchObject", "Sketch020")
sketch21.AttachmentSupport = (doc.getObject("YZ_Plane"), [""])
sketch21.MapMode = "FlatFace"
sketch21.AttachmentOffset = App.Placement(V(0, 0, 15), App.Rotation())
sketch21.addGeometry(Part.Circle(V(-185.61553, 185.61553, 0), V(0, 0, 1), 47.5), False)
sketch21.addConstraint([
    Sketcher.Constraint("Diameter", 0, 95.0),
    Sketcher.Constraint("DistanceX", 0, 3, -1, 1, 185.61553),
    Sketcher.Constraint("DistanceY", -1, 1, 0, 3, 185.61553),
])
doc.recompute()
hole5 = body.newObject("PartDesign::Hole", "Hole004")
hole5.Profile = sketch21
hole5.ThreadType = "None"
hole5.Diameter = 95
hole5.DepthType = "Dimension"
hole5.Depth = 38
hole5.DrillPoint = "Flat"

# Sketch on YZ plane
sketch22 = body.newObject("Sketcher::SketchObject", "Sketch021")
sketch22.AttachmentSupport = (doc.getObject("YZ_Plane"), [""])
sketch22.MapMode = "FlatFace"
sketch22.AttachmentOffset = App.Placement(V(0, 0, -23), App.Rotation())
sketch22.addGeometry(Part.Circle(V(0, 0, 0), V(0, 0, 1), 53), False)
sketch22.addConstraint([
    Sketcher.Constraint("Coincident", 0, 3, -1, 1),
    Sketcher.Constraint("Diameter", 0, 106.0),
])
doc.recompute()
hole6 = body.newObject("PartDesign::Hole", "Hole005")
hole6.Profile = sketch22
hole6.ThreadType = "None"
hole6.Diameter = 106
hole6.DepthType = "ThroughAll"
hole6.HoleCutType = "Counterbore"
hole6.HoleCutDiameter = 120
hole6.HoleCutDepth = 28.979995
hole6.Reversed = True

doc.recompute()
